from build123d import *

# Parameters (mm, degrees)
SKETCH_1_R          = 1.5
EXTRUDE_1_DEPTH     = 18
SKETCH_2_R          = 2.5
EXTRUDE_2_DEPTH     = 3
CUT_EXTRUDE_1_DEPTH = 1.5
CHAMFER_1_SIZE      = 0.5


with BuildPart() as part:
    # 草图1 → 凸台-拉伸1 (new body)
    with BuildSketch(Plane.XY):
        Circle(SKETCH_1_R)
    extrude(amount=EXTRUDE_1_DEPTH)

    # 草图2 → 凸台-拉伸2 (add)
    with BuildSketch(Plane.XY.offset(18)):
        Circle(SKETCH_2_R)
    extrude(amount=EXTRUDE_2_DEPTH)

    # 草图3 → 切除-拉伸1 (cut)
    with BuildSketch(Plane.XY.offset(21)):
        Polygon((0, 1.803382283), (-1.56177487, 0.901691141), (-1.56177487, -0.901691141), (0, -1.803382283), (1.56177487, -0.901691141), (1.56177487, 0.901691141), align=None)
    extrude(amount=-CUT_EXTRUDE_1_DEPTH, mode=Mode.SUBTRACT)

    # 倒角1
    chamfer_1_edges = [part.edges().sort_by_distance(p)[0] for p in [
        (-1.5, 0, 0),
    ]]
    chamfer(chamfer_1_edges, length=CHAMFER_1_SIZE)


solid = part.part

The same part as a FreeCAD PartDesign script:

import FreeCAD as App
import Part
import Sketcher
from FreeCAD import Vector
Q = App.Units.Quantity


def edges_at(feature, points):
    """Names of the edges that pass closest to the given points."""
    edges = feature.Shape.Edges
    near = lambda p: min(range(len(edges)), key=lambda i: edges[i].distToShape(Part.Vertex(*p))[0])
    return sorted({f"Edge{near(p) + 1}" for p in points})

doc = App.newDocument("Part")
body = doc.addObject("PartDesign::Body", "Body")

sketch1 = doc.addObject("Sketcher::SketchObject", "Sketch")
body.addObject(sketch1)
sketch1.AttachmentSupport = (doc.XY_Plane, [""])
sketch1.MapMode = "FlatFace"
sketch1.addGeometry(Part.Circle(Vector(0, 0, 0), Vector(0, 0, 1), 1.5), False)
sketch1.addConstraint([
    Sketcher.Constraint("Coincident", 0, 3, -1, 1),
    Sketcher.Constraint("Diameter", 0, 3.0),
])
pad1 = doc.addObject("PartDesign::Pad", "Pad")
body.addObject(pad1)
pad1.Profile = sketch1
pad1.Length = 18

sketch2 = doc.addObject("Sketcher::SketchObject", "Sketch001")
body.addObject(sketch2)
sketch2.AttachmentSupport = (doc.XY_Plane, [""])
sketch2.MapMode = "FlatFace"
sketch2.AttachmentOffset = App.Placement(Vector(0, 0, 18), App.Rotation())
sketch2.addGeometry(Part.Circle(Vector(0, 0, 0), Vector(0, 0, 1), 2.5), False)
sketch2.addConstraint([
    Sketcher.Constraint("Coincident", 0, 3, -1, 1),
    Sketcher.Constraint("Diameter", 0, 5.0),
])
pad2 = doc.addObject("PartDesign::Pad", "Pad001")
body.addObject(pad2)
pad2.Profile = sketch2
pad2.Length = 3

sketch3 = doc.addObject("Sketcher::SketchObject", "Sketch002")
body.addObject(sketch3)
sketch3.AttachmentSupport = (doc.XY_Plane, [""])
sketch3.MapMode = "FlatFace"
sketch3.AttachmentOffset = App.Placement(Vector(0, 0, 21), App.Rotation())
sketch3.addGeometry([
    Part.LineSegment(Vector(0, 1.8, 0), Vector(-1.6, 0.9, 0)),
    Part.LineSegment(Vector(-1.6, 0.9, 0), Vector(-1.6, -0.9, 0)),
    Part.LineSegment(Vector(-1.6, -0.9, 0), Vector(0, -1.8, 0)),
    Part.LineSegment(Vector(0, -1.8, 0), Vector(1.6, -0.9, 0)),
    Part.LineSegment(Vector(1.6, -0.9, 0), Vector(1.6, 0.9, 0)),
    Part.LineSegment(Vector(1.6, 0.9, 0), Vector(0, 1.8, 0)),
], False)
sketch3.addConstraint([
    Sketcher.Constraint("Coincident", 0, 2, 1, 1),
    Sketcher.Constraint("Coincident", 1, 2, 2, 1),
    Sketcher.Constraint("Coincident", 2, 2, 3, 1),
    Sketcher.Constraint("Coincident", 3, 2, 4, 1),
    Sketcher.Constraint("Coincident", 4, 2, 5, 1),
    Sketcher.Constraint("Coincident", 5, 2, 0, 1),
    Sketcher.Constraint("Vertical", 1),
    Sketcher.Constraint("Vertical", 4),
    Sketcher.Constraint("Symmetric", 0, 2, 3, 2, -1, 1),
    Sketcher.Constraint("Symmetric", 2, 2, 5, 2, -1, 1),
    Sketcher.Constraint("PointOnObject", 2, 2, -2),
    Sketcher.Constraint("Parallel", 2, 5),
    Sketcher.Constraint("Horizontal", 1, 2, 3, 2),
    Sketcher.Constraint("Angle", 0, Q("-150 deg")),
    Sketcher.Constraint("DistanceY", 1, 2, 1, 1, 1.803382),
    Sketcher.Constraint("DistanceY", 2, 2, 1, 2, 0.901691),
])
pocket1 = doc.addObject("PartDesign::Pocket", "Pocket")
body.addObject(pocket1)
pocket1.Profile = sketch3
pocket1.Length = 1.5
doc.recompute()

chamfer = doc.addObject("PartDesign::Chamfer", "Chamfer")
body.addObject(chamfer)
chamfer.Base = (pocket1, edges_at(pocket1, [(-1.5, 0, 0)]))
chamfer.Size = 0.5

doc.recompute()
